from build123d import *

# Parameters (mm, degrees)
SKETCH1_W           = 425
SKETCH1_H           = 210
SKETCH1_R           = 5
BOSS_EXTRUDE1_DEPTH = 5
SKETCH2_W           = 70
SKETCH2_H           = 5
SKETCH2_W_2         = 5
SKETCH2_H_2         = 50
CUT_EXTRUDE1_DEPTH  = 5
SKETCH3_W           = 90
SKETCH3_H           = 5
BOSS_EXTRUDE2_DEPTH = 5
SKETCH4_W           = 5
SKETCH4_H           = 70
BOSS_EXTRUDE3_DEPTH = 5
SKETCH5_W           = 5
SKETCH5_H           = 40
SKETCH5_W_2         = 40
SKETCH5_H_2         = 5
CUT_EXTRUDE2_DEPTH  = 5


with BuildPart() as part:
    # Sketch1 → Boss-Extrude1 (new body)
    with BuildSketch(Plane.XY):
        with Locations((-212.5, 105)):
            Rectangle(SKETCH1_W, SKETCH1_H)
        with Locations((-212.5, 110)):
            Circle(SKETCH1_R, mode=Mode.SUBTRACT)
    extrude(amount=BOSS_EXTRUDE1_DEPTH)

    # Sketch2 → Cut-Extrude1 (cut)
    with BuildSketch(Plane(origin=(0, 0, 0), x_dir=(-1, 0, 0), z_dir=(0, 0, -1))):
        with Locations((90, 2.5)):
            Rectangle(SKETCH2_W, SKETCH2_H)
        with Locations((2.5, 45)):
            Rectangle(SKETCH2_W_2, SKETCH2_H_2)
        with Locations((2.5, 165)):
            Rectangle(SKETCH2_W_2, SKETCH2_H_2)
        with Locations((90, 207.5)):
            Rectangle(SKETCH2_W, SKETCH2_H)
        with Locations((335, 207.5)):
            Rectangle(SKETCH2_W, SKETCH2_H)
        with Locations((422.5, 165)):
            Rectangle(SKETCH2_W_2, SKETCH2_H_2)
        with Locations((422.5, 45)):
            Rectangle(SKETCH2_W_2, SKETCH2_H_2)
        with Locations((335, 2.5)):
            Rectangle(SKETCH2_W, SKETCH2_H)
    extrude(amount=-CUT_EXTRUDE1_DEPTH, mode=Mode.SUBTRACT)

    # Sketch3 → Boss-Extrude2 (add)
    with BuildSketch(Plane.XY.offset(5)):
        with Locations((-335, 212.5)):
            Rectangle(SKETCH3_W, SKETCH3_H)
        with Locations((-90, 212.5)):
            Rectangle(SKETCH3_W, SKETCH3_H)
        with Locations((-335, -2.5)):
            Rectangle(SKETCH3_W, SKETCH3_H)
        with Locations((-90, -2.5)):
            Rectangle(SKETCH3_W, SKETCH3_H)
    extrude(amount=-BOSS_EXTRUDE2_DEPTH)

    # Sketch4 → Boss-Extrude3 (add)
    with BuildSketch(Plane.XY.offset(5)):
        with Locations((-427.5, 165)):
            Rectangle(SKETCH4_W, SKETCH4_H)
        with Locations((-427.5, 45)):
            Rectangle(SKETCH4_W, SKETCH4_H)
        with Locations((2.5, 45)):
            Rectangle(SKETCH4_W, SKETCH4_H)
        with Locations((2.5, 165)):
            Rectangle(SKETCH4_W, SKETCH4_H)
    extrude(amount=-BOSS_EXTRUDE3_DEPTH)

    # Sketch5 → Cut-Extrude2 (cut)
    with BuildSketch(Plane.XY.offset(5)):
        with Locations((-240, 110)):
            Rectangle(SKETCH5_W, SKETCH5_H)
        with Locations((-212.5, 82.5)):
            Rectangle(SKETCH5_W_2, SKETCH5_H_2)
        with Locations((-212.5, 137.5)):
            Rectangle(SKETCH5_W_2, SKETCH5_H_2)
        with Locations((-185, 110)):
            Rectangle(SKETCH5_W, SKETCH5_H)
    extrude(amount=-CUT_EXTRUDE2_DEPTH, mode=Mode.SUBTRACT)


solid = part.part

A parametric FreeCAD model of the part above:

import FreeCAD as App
import Part
import Sketcher
from FreeCAD import Vector

doc = App.newDocument("Part")
body = doc.addObject("PartDesign::Body", "Body")

sketch1 = body.newObject("Sketcher::SketchObject", "Sketch")
sketch1.AttachmentSupport = (doc.getObject("XY_Plane"), [""])
sketch1.MapMode = "FlatFace"
sketch1.addGeometry([
    Part.LineSegment(Vector(-425, 210, 0), Vector(-425, 0, 0)),
    Part.LineSegment(Vector(-425, 0, 0), Vector(0, 0, 0)),
    Part.LineSegment(Vector(0, 0, 0), Vector(0, 210, 0)),
    Part.LineSegment(Vector(0, 210, 0), Vector(-425, 210, 0)),
    Part.Circle(Vector(-212.5, 110, 0), Vector(0, 0, 1), 5),
], False)
sketch1.addConstraint([
    Sketcher.Constraint("Coincident", 0, 2, 1, 1),
    Sketcher.Constraint("Coincident", 1, 2, 2, 1),
    Sketcher.Constraint("Coincident", 2, 2, 3, 1),
    Sketcher.Constraint("Coincident", 3, 2, 0, 1),
    Sketcher.Constraint("Vertical", 0),
    Sketcher.Constraint("Horizontal", 1),
    Sketcher.Constraint("Vertical", 2),
    Sketcher.Constraint("Horizontal", 3),
    Sketcher.Constraint("Coincident", 1, 2, -1, 1),
    Sketcher.Constraint("Diameter", 4, 10.0),
    Sketcher.Constraint("DistanceX", 1, 1, 1, 2, 425.0),
    Sketcher.Constraint("DistanceY", 0, 2, 0, 1, 210.0),
    Sketcher.Constraint("DistanceY", -1, 1, 4, 3, 110.0),
    Sketcher.Constraint("DistanceX", 4, 3, -1, 1, 212.5),
])
pad1 = body.newObject("PartDesign::Pad", "Pad")
pad1.Profile = sketch1
pad1.Length = 5

sketch2 = body.newObject("Sketcher::SketchObject", "Sketch001")
sketch2.AttachmentSupport = (doc.getObject("XY_Plane"), [""])
sketch2.MapMode = "FlatFace"
sketch2.addGeometry([
    Part.LineSegment(Vector(-55, 5, 0), Vector(-55, 0, 0)),
    Part.LineSegment(Vector(-55, 0, 0), Vector(-125, 0, 0)),
    Part.LineSegment(Vector(-125, 0, 0), Vector(-125, 5, 0)),
    Part.LineSegment(Vector(-125, 5, 0), Vector(-55, 5, 0)),
    Part.LineSegment(Vector(0, 70, 0), Vector(0, 20, 0)),
    Part.LineSegment(Vector(0, 20, 0), Vector(-5, 20, 0)),
    Part.LineSegment(Vector(-5, 20, 0), Vector(-5, 70, 0)),
    Part.LineSegment(Vector(-5, 70, 0), Vector(0, 70, 0)),
    Part.LineSegment(Vector(0, 190, 0), Vector(0, 140, 0)),
    Part.LineSegment(Vector(0, 140, 0), Vector(-5, 140, 0)),
    Part.LineSegment(Vector(-5, 140, 0), Vector(-5, 190, 0)),
    Part.LineSegment(Vector(-5, 190, 0), Vector(0, 190, 0)),
    Part.LineSegment(Vector(-55, 210, 0), Vector(-55, 205, 0)),
    Part.LineSegment(Vector(-55, 205, 0), Vector(-125, 205, 0)),
    Part.LineSegment(Vector(-125, 205, 0), Vector(-125, 210, 0)),
    Part.LineSegment(Vector(-125, 210, 0), Vector(-55, 210, 0)),
    Part.LineSegment(Vector(-300, 210, 0), Vector(-300, 205, 0)),
    Part.LineSegment(Vector(-300, 205, 0), Vector(-370, 205, 0)),
    Part.LineSegment(Vector(-370, 205, 0), Vector(-370, 210, 0)),
    Part.LineSegment(Vector(-370, 210, 0), Vector(-300, 210, 0)),
    Part.LineSegment(Vector(-420, 190, 0), Vector(-420, 140, 0)),
    Part.LineSegment(Vector(-420, 140, 0), Vector(-425, 140, 0)),
    Part.LineSegment(Vector(-425, 140, 0), Vector(-425, 190, 0)),
    Part.LineSegment(Vector(-425, 190, 0), Vector(-420, 190, 0)),
    Part.LineSegment(Vector(-420, 70, 0), Vector(-420, 20, 0)),
    Part.LineSegment(Vector(-420, 20, 0), Vector(-425, 20, 0)),
    Part.LineSegment(Vector(-425, 20, 0), Vector(-425, 70, 0)),
    Part.LineSegment(Vector(-425, 70, 0), Vector(-420, 70, 0)),
    Part.LineSegment(Vector(-300, 5, 0), Vector(-300, 0, 0)),
    Part.LineSegment(Vector(-300, 0, 0), Vector(-370, 0, 0)),
    Part.LineSegment(Vector(-370, 0, 0), Vector(-370, 5, 0)),
    Part.LineSegment(Vector(-370, 5, 0), Vector(-300, 5, 0)),
], False)
sketch2.addConstraint([
    Sketcher.Constraint("Coincident", 0, 2, 1, 1),
    Sketcher.Constraint("Coincident", 1, 2, 2, 1),
    Sketcher.Constraint("Coincident", 2, 2, 3, 1),
    Sketcher.Constraint("Coincident", 3, 2, 0, 1),
    Sketcher.Constraint("Coincident", 4, 2, 5, 1),
    Sketcher.Constraint("Coincident", 5, 2, 6, 1),
    Sketcher.Constraint("Coincident", 6, 2, 7, 1),
    Sketcher.Constraint("Coincident", 7, 2, 4, 1),
    Sketcher.Constraint("Coincident", 8, 2, 9, 1),
    Sketcher.Constraint("Coincident", 9, 2, 10, 1),
    Sketcher.Constraint("Coincident", 10, 2, 11, 1),
    Sketcher.Constraint("Coincident", 11, 2, 8, 1),
    Sketcher.Constraint("Coincident", 12, 2, 13, 1),
    Sketcher.Constraint("Coincident", 13, 2, 14, 1),
    Sketcher.Constraint("Coincident", 14, 2, 15, 1),
    Sketcher.Constraint("Coincident", 15, 2, 12, 1),
    Sketcher.Constraint("Coincident", 16, 2, 17, 1),
    Sketcher.Constraint("Coincident", 17, 2, 18, 1),
    Sketcher.Constraint("Coincident", 18, 2, 19, 1),
    Sketcher.Constraint("Coincident", 19, 2, 16, 1),
    Sketcher.Constraint("Coincident", 20, 2, 21, 1),
    Sketcher.Constraint("Coincident", 21, 2, 22, 1),
    Sketcher.Constraint("Coincident", 22, 2, 23, 1),
    Sketcher.Constraint("Coincident", 23, 2, 20, 1),
    Sketcher.Constraint("Coincident", 24, 2, 25, 1),
    Sketcher.Constraint("Coincident", 25, 2, 26, 1),
    Sketcher.Constraint("Coincident", 26, 2, 27, 1),
    Sketcher.Constraint("Coincident", 27, 2, 24, 1),
    Sketcher.Constraint("Coincident", 28, 2, 29, 1),
    Sketcher.Constraint("Coincident", 29, 2, 30, 1),
    Sketcher.Constraint("Coincident", 30, 2, 31, 1),
    Sketcher.Constraint("Coincident", 31, 2, 28, 1),
    Sketcher.Constraint("Vertical", 0),
    Sketcher.Constraint("Horizontal", 1),
    Sketcher.Constraint("Vertical", 2),
    Sketcher.Constraint("Horizontal", 3),
    Sketcher.Constraint("Vertical", 4),
    Sketcher.Constraint("Horizontal", 5),
    Sketcher.Constraint("Vertical", 6),
    Sketcher.Constraint("Horizontal", 7),
    Sketcher.Constraint("Vertical", 8),
    Sketcher.Constraint("Horizontal", 9),
    Sketcher.Constraint("Vertical", 10),
    Sketcher.Constraint("Horizontal", 11),
    Sketcher.Constraint("Vertical", 12),
    Sketcher.Constraint("Horizontal", 13),
    Sketcher.Constraint("Vertical", 14),
    Sketcher.Constraint("Horizontal", 15),
    Sketcher.Constraint("Vertical", 16),
    Sketcher.Constraint("Horizontal", 17),
    Sketcher.Constraint("Vertical", 18),
    Sketcher.Constraint("Horizontal", 19),
    Sketcher.Constraint("Vertical", 20),
    Sketcher.Constraint("Horizontal", 21),
    Sketcher.Constraint("Vertical", 22),
    Sketcher.Constraint("Horizontal", 23),
    Sketcher.Constraint("Vertical", 24),
    Sketcher.Constraint("Horizontal", 25),
    Sketcher.Constraint("Vertical", 26),
    Sketcher.Constraint("Horizontal", 27),
    Sketcher.Constraint("Vertical", 28),
    Sketcher.Constraint("Horizontal", 29),
    Sketcher.Constraint("Vertical", 30),
    Sketcher.Constraint("Horizontal", 31),
    Sketcher.Constraint("PointOnObject", 0, 2, -1),
    Sketcher.Constraint("PointOnObject", 4, 2, -2),
    Sketcher.Constraint("PointOnObject", 8, 2, -2),
    Sketcher.Constraint("PointOnObject", 28, 2, -1),
    Sketcher.Constraint("Horizontal", 13, 2, 16, 2),
    Sketcher.Constraint("Horizontal", 15, 2, 18, 2),
    Sketcher.Constraint("Horizontal", 9, 2, 20, 2),
    Sketcher.Constraint("Horizontal", 11, 2, 22, 2),
    Sketcher.Constraint("Horizontal", 5, 2, 24, 2),
    Sketcher.Constraint("Horizontal", 7, 2, 26, 2),
    Sketcher.Constraint("Horizontal", 3, 2, 30, 2),
    Sketcher.Constraint("Vertical", 6, 2, 9, 2),
    Sketcher.Constraint("Vertical", 3, 2, 12, 2),
    Sketcher.Constraint("Vertical", 2, 2, 13, 2),
    Sketcher.Constraint("Vertical", 23, 2, 24, 2),
    Sketcher.Constraint("Vertical", 22, 2, 25, 2),
    Sketcher.Constraint("Vertical", 19, 2, 28, 2),
    Sketcher.Constraint("Vertical", 18, 2, 29, 2),
    Sketcher.Constraint("Equal", 15, 17),
    Sketcher.Constraint("Equal", 11, 21),
    Sketcher.Constraint("Equal", 27, 0),
    Sketcher.Constraint("Equal", 6, 8),
    Sketcher.Constraint("Equal", 2, 12),
    Sketcher.Constraint("DistanceX", 1, 2, 1, 1, 70.0),
    Sketcher.Constraint("DistanceX", 5, 2, 5, 1, 5.0),
    Sketcher.Constraint("DistanceY", 4, 2, 4, 1, 50.0),
    Sketcher.Constraint("DistanceX", 0, 2, -1, 1, 55.0),
    Sketcher.Constraint("DistanceY", -1, 1, 4, 2, 20.0),
    Sketcher.Constraint("DistanceY", -1, 1, 8, 2, 140.0),
    Sketcher.Constraint("DistanceY", -1, 1, 12, 2, 205.0),
    Sketcher.Constraint("DistanceX", 16, 2, -1, 1, 300.0),
    Sketcher.Constraint("DistanceX", 20, 2, -1, 1, 420.0),
])
pocket1 = body.newObject("PartDesign::Pocket", "Pocket")
pocket1.Profile = sketch2
pocket1.Length = 5
pocket1.Reversed = True

sketch3 = body.newObject("Sketcher::SketchObject", "Sketch002")
sketch3.AttachmentSupport = (doc.getObject("XY_Plane"), [""])
sketch3.MapMode = "FlatFace"
sketch3.AttachmentOffset = App.Placement(Vector(0, 0, 5), App.Rotation())
sketch3.addGeometry([
    Part.LineSegment(Vector(-380, 215, 0), Vector(-380, 210, 0)),
    Part.LineSegment(Vector(-380, 210, 0), Vector(-290, 210, 0)),
    Part.LineSegment(Vector(-290, 210, 0), Vector(-290, 215, 0)),
    Part.LineSegment(Vector(-290, 215, 0), Vector(-380, 215, 0)),
    Part.LineSegment(Vector(-135, 215, 0), Vector(-135, 210, 0)),
    Part.LineSegment(Vector(-135, 210, 0), Vector(-45, 210, 0)),
    Part.LineSegment(Vector(-45, 210, 0), Vector(-45, 215, 0)),
    Part.LineSegment(Vector(-45, 215, 0), Vector(-135, 215, 0)),
    Part.LineSegment(Vector(-380, 0, 0), Vector(-380, -5, 0)),
    Part.LineSegment(Vector(-380, -5, 0), Vector(-290, -5, 0)),
    Part.LineSegment(Vector(-290, -5, 0), Vector(-290, 0, 0)),
    Part.LineSegment(Vector(-290, 0, 0), Vector(-380, 0, 0)),
    Part.LineSegment(Vector(-135, 0, 0), Vector(-135, -5, 0)),
    Part.LineSegment(Vector(-135, -5, 0), Vector(-45, -5, 0)),
    Part.LineSegment(Vector(-45, -5, 0), Vector(-45, 0, 0)),
    Part.LineSegment(Vector(-45, 0, 0), Vector(-135, 0, 0)),
], False)
sketch3.addConstraint([
    Sketcher.Constraint("Coincident", 0, 2, 1, 1),
    Sketcher.Constraint("Coincident", 1, 2, 2, 1),
    Sketcher.Constraint("Coincident", 2, 2, 3, 1),
    Sketcher.Constraint("Coincident", 3, 2, 0, 1),
    Sketcher.Constraint("Coincident", 4, 2, 5, 1),
    Sketcher.Constraint("Coincident", 5, 2, 6, 1),
    Sketcher.Constraint("Coincident", 6, 2, 7, 1),
    Sketcher.Constraint("Coincident", 7, 2, 4, 1),
    Sketcher.Constraint("Coincident", 8, 2, 9, 1),
    Sketcher.Constraint("Coincident", 9, 2, 10, 1),
    Sketcher.Constraint("Coincident", 10, 2, 11, 1),
    Sketcher.Constraint("Coincident", 11, 2, 8, 1),
    Sketcher.Constraint("Coincident", 12, 2, 13, 1),
    Sketcher.Constraint("Coincident", 13, 2, 14, 1),
    Sketcher.Constraint("Coincident", 14, 2, 15, 1),
    Sketcher.Constraint("Coincident", 15, 2, 12, 1),
    Sketcher.Constraint("Vertical", 0),
    Sketcher.Constraint("Horizontal", 1),
    Sketcher.Constraint("Vertical", 2),
    Sketcher.Constraint("Horizontal", 3),
    Sketcher.Constraint("Vertical", 4),
    Sketcher.Constraint("Horizontal", 5),
    Sketcher.Constraint("Vertical", 6),
    Sketcher.Constraint("Horizontal", 7),
    Sketcher.Constraint("Vertical", 8),
    Sketcher.Constraint("Horizontal", 9),
    Sketcher.Constraint("Vertical", 10),
    Sketcher.Constraint("Horizontal", 11),
    Sketcher.Constraint("Vertical", 12),
    Sketcher.Constraint("Horizontal", 13),
    Sketcher.Constraint("Vertical", 14),
    Sketcher.Constraint("Horizontal", 15),
    Sketcher.Constraint("PointOnObject", 10, 2, -1),
    Sketcher.Constraint("PointOnObject", 14, 2, -1),
    Sketcher.Constraint("Horizontal", 1, 2, 4, 2),
    Sketcher.Constraint("Horizontal", 3, 2, 6, 2),
    Sketcher.Constraint("Horizontal", 9, 2, 12, 2),
    Sketcher.Constraint("Vertical", 3, 2, 8, 2),
    Sketcher.Constraint("Vertical", 2, 2, 9, 2),
    Sketcher.Constraint("Vertical", 7, 2, 12, 2),
    Sketcher.Constraint("Vertical", 6, 2, 13, 2),
    Sketcher.Constraint("Equal", 3, 5),
    Sketcher.Constraint("Equal", 6, 8),
    Sketcher.Constraint("DistanceX", 1, 1, 1, 2, 90.0),
    Sketcher.Constraint("DistanceY", 0, 2, 0, 1, 5.0),
    Sketcher.Constraint("DistanceX", 0, 2, -1, 1, 380.0),
    Sketcher.Constraint("DistanceY", -1, 1, 0, 2, 210.0),
    Sketcher.Constraint("DistanceX", 4, 2, -1, 1, 135.0),
])
pad2 = body.newObject("PartDesign::Pad", "Pad001")
pad2.Profile = sketch3
pad2.Length = 5
pad2.Reversed = True

sketch4 = body.newObject("Sketcher::SketchObject", "Sketch003")
sketch4.AttachmentSupport = (doc.getObject("XY_Plane"), [""])
sketch4.MapMode = "FlatFace"
sketch4.AttachmentOffset = App.Placement(Vector(0, 0, 5), App.Rotation())
sketch4.addGeometry([
    Part.LineSegment(Vector(-430, 200, 0), Vector(-430, 130, 0)),
    Part.LineSegment(Vector(-430, 130, 0), Vector(-425, 130, 0)),
    Part.LineSegment(Vector(-425, 130, 0), Vector(-425, 200, 0)),
    Part.LineSegment(Vector(-425, 200, 0), Vector(-430, 200, 0)),
    Part.LineSegment(Vector(-430, 80, 0), Vector(-430, 10, 0)),
    Part.LineSegment(Vector(-430, 10, 0), Vector(-425, 10, 0)),
    Part.LineSegment(Vector(-425, 10, 0), Vector(-425, 80, 0)),
    Part.LineSegment(Vector(-425, 80, 0), Vector(-430, 80, 0)),
    Part.LineSegment(Vector(0, 80, 0), Vector(0, 10, 0)),
    Part.LineSegment(Vector(0, 10, 0), Vector(5, 10, 0)),
    Part.LineSegment(Vector(5, 10, 0), Vector(5, 80, 0)),
    Part.LineSegment(Vector(5, 80, 0), Vector(0, 80, 0)),
    Part.LineSegment(Vector(0, 200, 0), Vector(0, 130, 0)),
    Part.LineSegment(Vector(0, 130, 0), Vector(5, 130, 0)),
    Part.LineSegment(Vector(5, 130, 0), Vector(5, 200, 0)),
    Part.LineSegment(Vector(5, 200, 0), Vector(0, 200, 0)),
], False)
sketch4.addConstraint([
    Sketcher.Constraint("Coincident", 0, 2, 1, 1),
    Sketcher.Constraint("Coincident", 1, 2, 2, 1),
    Sketcher.Constraint("Coincident", 2, 2, 3, 1),
    Sketcher.Constraint("Coincident", 3, 2, 0, 1),
    Sketcher.Constraint("Coincident", 4, 2, 5, 1),
    Sketcher.Constraint("Coincident", 5, 2, 6, 1),
    Sketcher.Constraint("Coincident", 6, 2, 7, 1),
    Sketcher.Constraint("Coincident", 7, 2, 4, 1),
    Sketcher.Constraint("Coincident", 8, 2, 9, 1),
    Sketcher.Constraint("Coincident", 9, 2, 10, 1),
    Sketcher.Constraint("Coincident", 10, 2, 11, 1),
    Sketcher.Constraint("Coincident", 11, 2, 8, 1),
    Sketcher.Constraint("Coincident", 12, 2, 13, 1),
    Sketcher.Constraint("Coincident", 13, 2, 14, 1),
    Sketcher.Constraint("Coincident", 14, 2, 15, 1),
    Sketcher.Constraint("Coincident", 15, 2, 12, 1),
    Sketcher.Constraint("Vertical", 0),
    Sketcher.Constraint("Horizontal", 1),
    Sketcher.Constraint("Vertical", 2),
    Sketcher.Constraint("Horizontal", 3),
    Sketcher.Constraint("Vertical", 4),
    Sketcher.Constraint("Horizontal", 5),
    Sketcher.Constraint("Vertical", 6),
    Sketcher.Constraint("Horizontal", 7),
    Sketcher.Constraint("Vertical", 8),
    Sketcher.Constraint("Horizontal", 9),
    Sketcher.Constraint("Vertical", 10),
    Sketcher.Constraint("Horizontal", 11),
    Sketcher.Constraint("Vertical", 12),
    Sketcher.Constraint("Horizontal", 13),
    Sketcher.Constraint("Vertical", 14),
    Sketcher.Constraint("Horizontal", 15),
    Sketcher.Constraint("PointOnObject", 8, 2, -2),
    Sketcher.Constraint("PointOnObject", 12, 2, -2),
    Sketcher.Constraint("Horizontal", 5, 2, 8, 2),
    Sketcher.Constraint("Horizontal", 7, 2, 10, 2),
    Sketcher.Constraint("Horizontal", 1, 2, 12, 2),
    Sketcher.Constraint("Horizontal", 3, 2, 14, 2),
    Sketcher.Constraint("Vertical", 3, 2, 4, 2),
    Sketcher.Constraint("Vertical", 2, 2, 5, 2),
    Sketcher.Constraint("Vertical", 10, 2, 13, 2),
    Sketcher.Constraint("Equal", 7, 9),
    Sketcher.Constraint("Equal", 2, 4),
    Sketcher.Constraint("DistanceX", 1, 1, 1, 2, 5.0),
    Sketcher.Constraint("DistanceY", 0, 2, 0, 1, 70.0),
    Sketcher.Constraint("DistanceX", 0, 2, -1, 1, 430.0),
    Sketcher.Constraint("DistanceY", -1, 1, 0, 2, 130.0),
    Sketcher.Constraint("DistanceY", -1, 1, 4, 2, 10.0),
])
pad3 = body.newObject("PartDesign::Pad", "Pad002")
pad3.Profile = sketch4
pad3.Length = 5
pad3.Reversed = True

sketch5 = body.newObject("Sketcher::SketchObject", "Sketch004")
sketch5.AttachmentSupport = (doc.getObject("XY_Plane"), [""])
sketch5.MapMode = "FlatFace"
sketch5.AttachmentOffset = App.Placement(Vector(0, 0, 5), App.Rotation())
sketch5.addGeometry([
    Part.LineSegment(Vector(-242.5, 130, 0), Vector(-242.5, 90, 0)),
    Part.LineSegment(Vector(-242.5, 90, 0), Vector(-237.5, 90, 0)),
    Part.LineSegment(Vector(-237.5, 90, 0), Vector(-237.5, 130, 0)),
    Part.LineSegment(Vector(-237.5, 130, 0), Vector(-242.5, 130, 0)),
    Part.LineSegment(Vector(-232.5, 85, 0), Vector(-232.5, 80, 0)),
    Part.LineSegment(Vector(-232.5, 80, 0), Vector(-192.5, 80, 0)),
    Part.LineSegment(Vector(-192.5, 80, 0), Vector(-192.5, 85, 0)),
    Part.LineSegment(Vector(-192.5, 85, 0), Vector(-232.5, 85, 0)),
    Part.LineSegment(Vector(-232.5, 140, 0), Vector(-232.5, 135, 0)),
    Part.LineSegment(Vector(-232.5, 135, 0), Vector(-192.5, 135, 0)),
    Part.LineSegment(Vector(-192.5, 135, 0), Vector(-192.5, 140, 0)),
    Part.LineSegment(Vector(-192.5, 140, 0), Vector(-232.5, 140, 0)),
    Part.LineSegment(Vector(-187.5, 130, 0), Vector(-187.5, 90, 0)),
    Part.LineSegment(Vector(-187.5, 90, 0), Vector(-182.5, 90, 0)),
    Part.LineSegment(Vector(-182.5, 90, 0), Vector(-182.5, 130, 0)),
    Part.LineSegment(Vector(-182.5, 130, 0), Vector(-187.5, 130, 0)),
], False)
sketch5.addConstraint([
    Sketcher.Constraint("Coincident", 0, 2, 1, 1),
    Sketcher.Constraint("Coincident", 1, 2, 2, 1),
    Sketcher.Constraint("Coincident", 2, 2, 3, 1),
    Sketcher.Constraint("Coincident", 3, 2, 0, 1),
    Sketcher.Constraint("Coincident", 4, 2, 5, 1),
    Sketcher.Constraint("Coincident", 5, 2, 6, 1),
    Sketcher.Constraint("Coincident", 6, 2, 7, 1),
    Sketcher.Constraint("Coincident", 7, 2, 4, 1),
    Sketcher.Constraint("Coincident", 8, 2, 9, 1),
    Sketcher.Constraint("Coincident", 9, 2, 10, 1),
    Sketcher.Constraint("Coincident", 10, 2, 11, 1),
    Sketcher.Constraint("Coincident", 11, 2, 8, 1),
    Sketcher.Constraint("Coincident", 12, 2, 13, 1),
    Sketcher.Constraint("Coincident", 13, 2, 14, 1),
    Sketcher.Constraint("Coincident", 14, 2, 15, 1),
    Sketcher.Constraint("Coincident", 15, 2, 12, 1),
    Sketcher.Constraint("Vertical", 0),
    Sketcher.Constraint("Horizontal", 1),
    Sketcher.Constraint("Vertical", 2),
    Sketcher.Constraint("Horizontal", 3),
    Sketcher.Constraint("Vertical", 4),
    Sketcher.Constraint("Horizontal", 5),
    Sketcher.Constraint("Vertical", 6),
    Sketcher.Constraint("Horizontal", 7),
    Sketcher.Constraint("Vertical", 8),
    Sketcher.Constraint("Horizontal", 9),
    Sketcher.Constraint("Vertical", 10),
    Sketcher.Constraint("Horizontal", 11),
    Sketcher.Constraint("Vertical", 12),
    Sketcher.Constraint("Horizontal", 13),
    Sketcher.Constraint("Vertical", 14),
    Sketcher.Constraint("Horizontal", 15),
    Sketcher.Constraint("Horizontal", 1, 2, 12, 2),
    Sketcher.Constraint("Horizontal", 3, 2, 14, 2),
    Sketcher.Constraint("Vertical", 7, 2, 8, 2),
    Sketcher.Constraint("Vertical", 6, 2, 9, 2),
    Sketcher.Constraint("Equal", 3, 13),
    Sketcher.Constraint("Equal", 11, 0),
    Sketcher.Constraint("Equal", 15, 4),
    Sketcher.Constraint("Equal", 6, 8),
    Sketcher.Constraint("DistanceX", 1, 1, 1, 2, 5.0),
    Sketcher.Constraint("DistanceX", 5, 1, 5, 2, 40.0),
    Sketcher.Constraint("DistanceY", -1, 1, 0, 2, 90.0),
    Sketcher.Constraint("DistanceY", -1, 1, 4, 2, 80.0),
    Sketcher.Constraint("DistanceY", -1, 1, 8, 2, 135.0),
    Sketcher.Constraint("DistanceX", 1, 2, 4, 2, 5.0),
    Sketcher.Constraint("DistanceX", 6, 2, 12, 2, 5.0),
    Sketcher.Constraint("DistanceX", 0, 2, -1, 1, 242.5),
])
pocket2 = body.newObject("PartDesign::Pocket", "Pocket001")
pocket2.Profile = sketch5
pocket2.Length = 5

doc.recompute()
